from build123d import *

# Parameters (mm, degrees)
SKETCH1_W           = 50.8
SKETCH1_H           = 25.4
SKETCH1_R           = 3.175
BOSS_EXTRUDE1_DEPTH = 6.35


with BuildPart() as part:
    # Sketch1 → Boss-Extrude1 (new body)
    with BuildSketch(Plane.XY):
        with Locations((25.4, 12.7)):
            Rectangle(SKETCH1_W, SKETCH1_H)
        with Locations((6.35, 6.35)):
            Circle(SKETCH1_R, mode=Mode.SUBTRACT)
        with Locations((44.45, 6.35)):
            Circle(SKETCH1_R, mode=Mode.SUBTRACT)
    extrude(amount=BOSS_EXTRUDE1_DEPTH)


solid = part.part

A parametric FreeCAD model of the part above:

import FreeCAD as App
import Part
import Sketcher
Q = App.Units.Quantity


def add_polygon(sketch, points):
    """Adds a closed chain of lines whose ends are joined by coincident constraints."""
    first, n = sketch.GeometryCount, len(points)
    for a, b in zip(points, points[1:] + points[:1]):
        sketch.addGeometry(Part.LineSegment(App.Vector(*a, 0), App.Vector(*b, 0)), False)
    for i in range(n):
        sketch.addConstraint(Sketcher.Constraint("Coincident", first + i, 2, first + (i + 1) % n, 1))

doc = App.newDocument("Part")
body = doc.addObject("PartDesign::Body", "Body")

# Sketch on XY plane
sketch1 = body.newObject("Sketcher::SketchObject", "Sketch")
sketch1.AttachmentSupport = (doc.getObject("XY_Plane"), [""])
sketch1.MapMode = "FlatFace"
add_polygon(sketch1, [(0, 25.4), (0, 0), (50.8, 0), (50.8, 25.4)])  # lines 0-3
sketch1.addGeometry(Part.Circle(App.Vector(6.3, 6.3, 0), App.Vector(0, 0, 1), 3.2), False)  # 4
sketch1.addGeometry(Part.Circle(App.Vector(44.5, 6.3, 0), App.Vector(0, 0, 1), 3.2), False)  # 5
sketch1.addConstraint([
    Sketcher.Constraint("Vertical", 0),
    Sketcher.Constraint("Horizontal", 1),
    Sketcher.Constraint("Vertical", 2),
    Sketcher.Constraint("Horizontal", 3),
    Sketcher.Constraint("Coincident", 0, 2, -1, 1),
    Sketcher.Constraint("Equal", 4, 5),
    Sketcher.Constraint("Horizontal", 4, 3, 5, 3),
    Sketcher.Constraint("Diameter", 4, Q("0.25 in")),
    Sketcher.Constraint("DistanceX", 1, 1, 1, 2, Q("2 in")),
    Sketcher.Constraint("DistanceY", 0, 2, 0, 1, Q("1 in")),
    Sketcher.Constraint("DistanceX", 4, 3, 5, 3, Q("1.5 in")),
    Sketcher.Constraint("DistanceX", -1, 1, 4, 3, Q("0.25 in")),
    Sketcher.Constraint("DistanceY", -1, 1, 4, 3, Q("0.25 in")),
])
pad1 = body.newObject("PartDesign::Pad", "Pad")
pad1.Profile = sketch1
pad1.Length = Q("0.25 in")

doc.recompute()
